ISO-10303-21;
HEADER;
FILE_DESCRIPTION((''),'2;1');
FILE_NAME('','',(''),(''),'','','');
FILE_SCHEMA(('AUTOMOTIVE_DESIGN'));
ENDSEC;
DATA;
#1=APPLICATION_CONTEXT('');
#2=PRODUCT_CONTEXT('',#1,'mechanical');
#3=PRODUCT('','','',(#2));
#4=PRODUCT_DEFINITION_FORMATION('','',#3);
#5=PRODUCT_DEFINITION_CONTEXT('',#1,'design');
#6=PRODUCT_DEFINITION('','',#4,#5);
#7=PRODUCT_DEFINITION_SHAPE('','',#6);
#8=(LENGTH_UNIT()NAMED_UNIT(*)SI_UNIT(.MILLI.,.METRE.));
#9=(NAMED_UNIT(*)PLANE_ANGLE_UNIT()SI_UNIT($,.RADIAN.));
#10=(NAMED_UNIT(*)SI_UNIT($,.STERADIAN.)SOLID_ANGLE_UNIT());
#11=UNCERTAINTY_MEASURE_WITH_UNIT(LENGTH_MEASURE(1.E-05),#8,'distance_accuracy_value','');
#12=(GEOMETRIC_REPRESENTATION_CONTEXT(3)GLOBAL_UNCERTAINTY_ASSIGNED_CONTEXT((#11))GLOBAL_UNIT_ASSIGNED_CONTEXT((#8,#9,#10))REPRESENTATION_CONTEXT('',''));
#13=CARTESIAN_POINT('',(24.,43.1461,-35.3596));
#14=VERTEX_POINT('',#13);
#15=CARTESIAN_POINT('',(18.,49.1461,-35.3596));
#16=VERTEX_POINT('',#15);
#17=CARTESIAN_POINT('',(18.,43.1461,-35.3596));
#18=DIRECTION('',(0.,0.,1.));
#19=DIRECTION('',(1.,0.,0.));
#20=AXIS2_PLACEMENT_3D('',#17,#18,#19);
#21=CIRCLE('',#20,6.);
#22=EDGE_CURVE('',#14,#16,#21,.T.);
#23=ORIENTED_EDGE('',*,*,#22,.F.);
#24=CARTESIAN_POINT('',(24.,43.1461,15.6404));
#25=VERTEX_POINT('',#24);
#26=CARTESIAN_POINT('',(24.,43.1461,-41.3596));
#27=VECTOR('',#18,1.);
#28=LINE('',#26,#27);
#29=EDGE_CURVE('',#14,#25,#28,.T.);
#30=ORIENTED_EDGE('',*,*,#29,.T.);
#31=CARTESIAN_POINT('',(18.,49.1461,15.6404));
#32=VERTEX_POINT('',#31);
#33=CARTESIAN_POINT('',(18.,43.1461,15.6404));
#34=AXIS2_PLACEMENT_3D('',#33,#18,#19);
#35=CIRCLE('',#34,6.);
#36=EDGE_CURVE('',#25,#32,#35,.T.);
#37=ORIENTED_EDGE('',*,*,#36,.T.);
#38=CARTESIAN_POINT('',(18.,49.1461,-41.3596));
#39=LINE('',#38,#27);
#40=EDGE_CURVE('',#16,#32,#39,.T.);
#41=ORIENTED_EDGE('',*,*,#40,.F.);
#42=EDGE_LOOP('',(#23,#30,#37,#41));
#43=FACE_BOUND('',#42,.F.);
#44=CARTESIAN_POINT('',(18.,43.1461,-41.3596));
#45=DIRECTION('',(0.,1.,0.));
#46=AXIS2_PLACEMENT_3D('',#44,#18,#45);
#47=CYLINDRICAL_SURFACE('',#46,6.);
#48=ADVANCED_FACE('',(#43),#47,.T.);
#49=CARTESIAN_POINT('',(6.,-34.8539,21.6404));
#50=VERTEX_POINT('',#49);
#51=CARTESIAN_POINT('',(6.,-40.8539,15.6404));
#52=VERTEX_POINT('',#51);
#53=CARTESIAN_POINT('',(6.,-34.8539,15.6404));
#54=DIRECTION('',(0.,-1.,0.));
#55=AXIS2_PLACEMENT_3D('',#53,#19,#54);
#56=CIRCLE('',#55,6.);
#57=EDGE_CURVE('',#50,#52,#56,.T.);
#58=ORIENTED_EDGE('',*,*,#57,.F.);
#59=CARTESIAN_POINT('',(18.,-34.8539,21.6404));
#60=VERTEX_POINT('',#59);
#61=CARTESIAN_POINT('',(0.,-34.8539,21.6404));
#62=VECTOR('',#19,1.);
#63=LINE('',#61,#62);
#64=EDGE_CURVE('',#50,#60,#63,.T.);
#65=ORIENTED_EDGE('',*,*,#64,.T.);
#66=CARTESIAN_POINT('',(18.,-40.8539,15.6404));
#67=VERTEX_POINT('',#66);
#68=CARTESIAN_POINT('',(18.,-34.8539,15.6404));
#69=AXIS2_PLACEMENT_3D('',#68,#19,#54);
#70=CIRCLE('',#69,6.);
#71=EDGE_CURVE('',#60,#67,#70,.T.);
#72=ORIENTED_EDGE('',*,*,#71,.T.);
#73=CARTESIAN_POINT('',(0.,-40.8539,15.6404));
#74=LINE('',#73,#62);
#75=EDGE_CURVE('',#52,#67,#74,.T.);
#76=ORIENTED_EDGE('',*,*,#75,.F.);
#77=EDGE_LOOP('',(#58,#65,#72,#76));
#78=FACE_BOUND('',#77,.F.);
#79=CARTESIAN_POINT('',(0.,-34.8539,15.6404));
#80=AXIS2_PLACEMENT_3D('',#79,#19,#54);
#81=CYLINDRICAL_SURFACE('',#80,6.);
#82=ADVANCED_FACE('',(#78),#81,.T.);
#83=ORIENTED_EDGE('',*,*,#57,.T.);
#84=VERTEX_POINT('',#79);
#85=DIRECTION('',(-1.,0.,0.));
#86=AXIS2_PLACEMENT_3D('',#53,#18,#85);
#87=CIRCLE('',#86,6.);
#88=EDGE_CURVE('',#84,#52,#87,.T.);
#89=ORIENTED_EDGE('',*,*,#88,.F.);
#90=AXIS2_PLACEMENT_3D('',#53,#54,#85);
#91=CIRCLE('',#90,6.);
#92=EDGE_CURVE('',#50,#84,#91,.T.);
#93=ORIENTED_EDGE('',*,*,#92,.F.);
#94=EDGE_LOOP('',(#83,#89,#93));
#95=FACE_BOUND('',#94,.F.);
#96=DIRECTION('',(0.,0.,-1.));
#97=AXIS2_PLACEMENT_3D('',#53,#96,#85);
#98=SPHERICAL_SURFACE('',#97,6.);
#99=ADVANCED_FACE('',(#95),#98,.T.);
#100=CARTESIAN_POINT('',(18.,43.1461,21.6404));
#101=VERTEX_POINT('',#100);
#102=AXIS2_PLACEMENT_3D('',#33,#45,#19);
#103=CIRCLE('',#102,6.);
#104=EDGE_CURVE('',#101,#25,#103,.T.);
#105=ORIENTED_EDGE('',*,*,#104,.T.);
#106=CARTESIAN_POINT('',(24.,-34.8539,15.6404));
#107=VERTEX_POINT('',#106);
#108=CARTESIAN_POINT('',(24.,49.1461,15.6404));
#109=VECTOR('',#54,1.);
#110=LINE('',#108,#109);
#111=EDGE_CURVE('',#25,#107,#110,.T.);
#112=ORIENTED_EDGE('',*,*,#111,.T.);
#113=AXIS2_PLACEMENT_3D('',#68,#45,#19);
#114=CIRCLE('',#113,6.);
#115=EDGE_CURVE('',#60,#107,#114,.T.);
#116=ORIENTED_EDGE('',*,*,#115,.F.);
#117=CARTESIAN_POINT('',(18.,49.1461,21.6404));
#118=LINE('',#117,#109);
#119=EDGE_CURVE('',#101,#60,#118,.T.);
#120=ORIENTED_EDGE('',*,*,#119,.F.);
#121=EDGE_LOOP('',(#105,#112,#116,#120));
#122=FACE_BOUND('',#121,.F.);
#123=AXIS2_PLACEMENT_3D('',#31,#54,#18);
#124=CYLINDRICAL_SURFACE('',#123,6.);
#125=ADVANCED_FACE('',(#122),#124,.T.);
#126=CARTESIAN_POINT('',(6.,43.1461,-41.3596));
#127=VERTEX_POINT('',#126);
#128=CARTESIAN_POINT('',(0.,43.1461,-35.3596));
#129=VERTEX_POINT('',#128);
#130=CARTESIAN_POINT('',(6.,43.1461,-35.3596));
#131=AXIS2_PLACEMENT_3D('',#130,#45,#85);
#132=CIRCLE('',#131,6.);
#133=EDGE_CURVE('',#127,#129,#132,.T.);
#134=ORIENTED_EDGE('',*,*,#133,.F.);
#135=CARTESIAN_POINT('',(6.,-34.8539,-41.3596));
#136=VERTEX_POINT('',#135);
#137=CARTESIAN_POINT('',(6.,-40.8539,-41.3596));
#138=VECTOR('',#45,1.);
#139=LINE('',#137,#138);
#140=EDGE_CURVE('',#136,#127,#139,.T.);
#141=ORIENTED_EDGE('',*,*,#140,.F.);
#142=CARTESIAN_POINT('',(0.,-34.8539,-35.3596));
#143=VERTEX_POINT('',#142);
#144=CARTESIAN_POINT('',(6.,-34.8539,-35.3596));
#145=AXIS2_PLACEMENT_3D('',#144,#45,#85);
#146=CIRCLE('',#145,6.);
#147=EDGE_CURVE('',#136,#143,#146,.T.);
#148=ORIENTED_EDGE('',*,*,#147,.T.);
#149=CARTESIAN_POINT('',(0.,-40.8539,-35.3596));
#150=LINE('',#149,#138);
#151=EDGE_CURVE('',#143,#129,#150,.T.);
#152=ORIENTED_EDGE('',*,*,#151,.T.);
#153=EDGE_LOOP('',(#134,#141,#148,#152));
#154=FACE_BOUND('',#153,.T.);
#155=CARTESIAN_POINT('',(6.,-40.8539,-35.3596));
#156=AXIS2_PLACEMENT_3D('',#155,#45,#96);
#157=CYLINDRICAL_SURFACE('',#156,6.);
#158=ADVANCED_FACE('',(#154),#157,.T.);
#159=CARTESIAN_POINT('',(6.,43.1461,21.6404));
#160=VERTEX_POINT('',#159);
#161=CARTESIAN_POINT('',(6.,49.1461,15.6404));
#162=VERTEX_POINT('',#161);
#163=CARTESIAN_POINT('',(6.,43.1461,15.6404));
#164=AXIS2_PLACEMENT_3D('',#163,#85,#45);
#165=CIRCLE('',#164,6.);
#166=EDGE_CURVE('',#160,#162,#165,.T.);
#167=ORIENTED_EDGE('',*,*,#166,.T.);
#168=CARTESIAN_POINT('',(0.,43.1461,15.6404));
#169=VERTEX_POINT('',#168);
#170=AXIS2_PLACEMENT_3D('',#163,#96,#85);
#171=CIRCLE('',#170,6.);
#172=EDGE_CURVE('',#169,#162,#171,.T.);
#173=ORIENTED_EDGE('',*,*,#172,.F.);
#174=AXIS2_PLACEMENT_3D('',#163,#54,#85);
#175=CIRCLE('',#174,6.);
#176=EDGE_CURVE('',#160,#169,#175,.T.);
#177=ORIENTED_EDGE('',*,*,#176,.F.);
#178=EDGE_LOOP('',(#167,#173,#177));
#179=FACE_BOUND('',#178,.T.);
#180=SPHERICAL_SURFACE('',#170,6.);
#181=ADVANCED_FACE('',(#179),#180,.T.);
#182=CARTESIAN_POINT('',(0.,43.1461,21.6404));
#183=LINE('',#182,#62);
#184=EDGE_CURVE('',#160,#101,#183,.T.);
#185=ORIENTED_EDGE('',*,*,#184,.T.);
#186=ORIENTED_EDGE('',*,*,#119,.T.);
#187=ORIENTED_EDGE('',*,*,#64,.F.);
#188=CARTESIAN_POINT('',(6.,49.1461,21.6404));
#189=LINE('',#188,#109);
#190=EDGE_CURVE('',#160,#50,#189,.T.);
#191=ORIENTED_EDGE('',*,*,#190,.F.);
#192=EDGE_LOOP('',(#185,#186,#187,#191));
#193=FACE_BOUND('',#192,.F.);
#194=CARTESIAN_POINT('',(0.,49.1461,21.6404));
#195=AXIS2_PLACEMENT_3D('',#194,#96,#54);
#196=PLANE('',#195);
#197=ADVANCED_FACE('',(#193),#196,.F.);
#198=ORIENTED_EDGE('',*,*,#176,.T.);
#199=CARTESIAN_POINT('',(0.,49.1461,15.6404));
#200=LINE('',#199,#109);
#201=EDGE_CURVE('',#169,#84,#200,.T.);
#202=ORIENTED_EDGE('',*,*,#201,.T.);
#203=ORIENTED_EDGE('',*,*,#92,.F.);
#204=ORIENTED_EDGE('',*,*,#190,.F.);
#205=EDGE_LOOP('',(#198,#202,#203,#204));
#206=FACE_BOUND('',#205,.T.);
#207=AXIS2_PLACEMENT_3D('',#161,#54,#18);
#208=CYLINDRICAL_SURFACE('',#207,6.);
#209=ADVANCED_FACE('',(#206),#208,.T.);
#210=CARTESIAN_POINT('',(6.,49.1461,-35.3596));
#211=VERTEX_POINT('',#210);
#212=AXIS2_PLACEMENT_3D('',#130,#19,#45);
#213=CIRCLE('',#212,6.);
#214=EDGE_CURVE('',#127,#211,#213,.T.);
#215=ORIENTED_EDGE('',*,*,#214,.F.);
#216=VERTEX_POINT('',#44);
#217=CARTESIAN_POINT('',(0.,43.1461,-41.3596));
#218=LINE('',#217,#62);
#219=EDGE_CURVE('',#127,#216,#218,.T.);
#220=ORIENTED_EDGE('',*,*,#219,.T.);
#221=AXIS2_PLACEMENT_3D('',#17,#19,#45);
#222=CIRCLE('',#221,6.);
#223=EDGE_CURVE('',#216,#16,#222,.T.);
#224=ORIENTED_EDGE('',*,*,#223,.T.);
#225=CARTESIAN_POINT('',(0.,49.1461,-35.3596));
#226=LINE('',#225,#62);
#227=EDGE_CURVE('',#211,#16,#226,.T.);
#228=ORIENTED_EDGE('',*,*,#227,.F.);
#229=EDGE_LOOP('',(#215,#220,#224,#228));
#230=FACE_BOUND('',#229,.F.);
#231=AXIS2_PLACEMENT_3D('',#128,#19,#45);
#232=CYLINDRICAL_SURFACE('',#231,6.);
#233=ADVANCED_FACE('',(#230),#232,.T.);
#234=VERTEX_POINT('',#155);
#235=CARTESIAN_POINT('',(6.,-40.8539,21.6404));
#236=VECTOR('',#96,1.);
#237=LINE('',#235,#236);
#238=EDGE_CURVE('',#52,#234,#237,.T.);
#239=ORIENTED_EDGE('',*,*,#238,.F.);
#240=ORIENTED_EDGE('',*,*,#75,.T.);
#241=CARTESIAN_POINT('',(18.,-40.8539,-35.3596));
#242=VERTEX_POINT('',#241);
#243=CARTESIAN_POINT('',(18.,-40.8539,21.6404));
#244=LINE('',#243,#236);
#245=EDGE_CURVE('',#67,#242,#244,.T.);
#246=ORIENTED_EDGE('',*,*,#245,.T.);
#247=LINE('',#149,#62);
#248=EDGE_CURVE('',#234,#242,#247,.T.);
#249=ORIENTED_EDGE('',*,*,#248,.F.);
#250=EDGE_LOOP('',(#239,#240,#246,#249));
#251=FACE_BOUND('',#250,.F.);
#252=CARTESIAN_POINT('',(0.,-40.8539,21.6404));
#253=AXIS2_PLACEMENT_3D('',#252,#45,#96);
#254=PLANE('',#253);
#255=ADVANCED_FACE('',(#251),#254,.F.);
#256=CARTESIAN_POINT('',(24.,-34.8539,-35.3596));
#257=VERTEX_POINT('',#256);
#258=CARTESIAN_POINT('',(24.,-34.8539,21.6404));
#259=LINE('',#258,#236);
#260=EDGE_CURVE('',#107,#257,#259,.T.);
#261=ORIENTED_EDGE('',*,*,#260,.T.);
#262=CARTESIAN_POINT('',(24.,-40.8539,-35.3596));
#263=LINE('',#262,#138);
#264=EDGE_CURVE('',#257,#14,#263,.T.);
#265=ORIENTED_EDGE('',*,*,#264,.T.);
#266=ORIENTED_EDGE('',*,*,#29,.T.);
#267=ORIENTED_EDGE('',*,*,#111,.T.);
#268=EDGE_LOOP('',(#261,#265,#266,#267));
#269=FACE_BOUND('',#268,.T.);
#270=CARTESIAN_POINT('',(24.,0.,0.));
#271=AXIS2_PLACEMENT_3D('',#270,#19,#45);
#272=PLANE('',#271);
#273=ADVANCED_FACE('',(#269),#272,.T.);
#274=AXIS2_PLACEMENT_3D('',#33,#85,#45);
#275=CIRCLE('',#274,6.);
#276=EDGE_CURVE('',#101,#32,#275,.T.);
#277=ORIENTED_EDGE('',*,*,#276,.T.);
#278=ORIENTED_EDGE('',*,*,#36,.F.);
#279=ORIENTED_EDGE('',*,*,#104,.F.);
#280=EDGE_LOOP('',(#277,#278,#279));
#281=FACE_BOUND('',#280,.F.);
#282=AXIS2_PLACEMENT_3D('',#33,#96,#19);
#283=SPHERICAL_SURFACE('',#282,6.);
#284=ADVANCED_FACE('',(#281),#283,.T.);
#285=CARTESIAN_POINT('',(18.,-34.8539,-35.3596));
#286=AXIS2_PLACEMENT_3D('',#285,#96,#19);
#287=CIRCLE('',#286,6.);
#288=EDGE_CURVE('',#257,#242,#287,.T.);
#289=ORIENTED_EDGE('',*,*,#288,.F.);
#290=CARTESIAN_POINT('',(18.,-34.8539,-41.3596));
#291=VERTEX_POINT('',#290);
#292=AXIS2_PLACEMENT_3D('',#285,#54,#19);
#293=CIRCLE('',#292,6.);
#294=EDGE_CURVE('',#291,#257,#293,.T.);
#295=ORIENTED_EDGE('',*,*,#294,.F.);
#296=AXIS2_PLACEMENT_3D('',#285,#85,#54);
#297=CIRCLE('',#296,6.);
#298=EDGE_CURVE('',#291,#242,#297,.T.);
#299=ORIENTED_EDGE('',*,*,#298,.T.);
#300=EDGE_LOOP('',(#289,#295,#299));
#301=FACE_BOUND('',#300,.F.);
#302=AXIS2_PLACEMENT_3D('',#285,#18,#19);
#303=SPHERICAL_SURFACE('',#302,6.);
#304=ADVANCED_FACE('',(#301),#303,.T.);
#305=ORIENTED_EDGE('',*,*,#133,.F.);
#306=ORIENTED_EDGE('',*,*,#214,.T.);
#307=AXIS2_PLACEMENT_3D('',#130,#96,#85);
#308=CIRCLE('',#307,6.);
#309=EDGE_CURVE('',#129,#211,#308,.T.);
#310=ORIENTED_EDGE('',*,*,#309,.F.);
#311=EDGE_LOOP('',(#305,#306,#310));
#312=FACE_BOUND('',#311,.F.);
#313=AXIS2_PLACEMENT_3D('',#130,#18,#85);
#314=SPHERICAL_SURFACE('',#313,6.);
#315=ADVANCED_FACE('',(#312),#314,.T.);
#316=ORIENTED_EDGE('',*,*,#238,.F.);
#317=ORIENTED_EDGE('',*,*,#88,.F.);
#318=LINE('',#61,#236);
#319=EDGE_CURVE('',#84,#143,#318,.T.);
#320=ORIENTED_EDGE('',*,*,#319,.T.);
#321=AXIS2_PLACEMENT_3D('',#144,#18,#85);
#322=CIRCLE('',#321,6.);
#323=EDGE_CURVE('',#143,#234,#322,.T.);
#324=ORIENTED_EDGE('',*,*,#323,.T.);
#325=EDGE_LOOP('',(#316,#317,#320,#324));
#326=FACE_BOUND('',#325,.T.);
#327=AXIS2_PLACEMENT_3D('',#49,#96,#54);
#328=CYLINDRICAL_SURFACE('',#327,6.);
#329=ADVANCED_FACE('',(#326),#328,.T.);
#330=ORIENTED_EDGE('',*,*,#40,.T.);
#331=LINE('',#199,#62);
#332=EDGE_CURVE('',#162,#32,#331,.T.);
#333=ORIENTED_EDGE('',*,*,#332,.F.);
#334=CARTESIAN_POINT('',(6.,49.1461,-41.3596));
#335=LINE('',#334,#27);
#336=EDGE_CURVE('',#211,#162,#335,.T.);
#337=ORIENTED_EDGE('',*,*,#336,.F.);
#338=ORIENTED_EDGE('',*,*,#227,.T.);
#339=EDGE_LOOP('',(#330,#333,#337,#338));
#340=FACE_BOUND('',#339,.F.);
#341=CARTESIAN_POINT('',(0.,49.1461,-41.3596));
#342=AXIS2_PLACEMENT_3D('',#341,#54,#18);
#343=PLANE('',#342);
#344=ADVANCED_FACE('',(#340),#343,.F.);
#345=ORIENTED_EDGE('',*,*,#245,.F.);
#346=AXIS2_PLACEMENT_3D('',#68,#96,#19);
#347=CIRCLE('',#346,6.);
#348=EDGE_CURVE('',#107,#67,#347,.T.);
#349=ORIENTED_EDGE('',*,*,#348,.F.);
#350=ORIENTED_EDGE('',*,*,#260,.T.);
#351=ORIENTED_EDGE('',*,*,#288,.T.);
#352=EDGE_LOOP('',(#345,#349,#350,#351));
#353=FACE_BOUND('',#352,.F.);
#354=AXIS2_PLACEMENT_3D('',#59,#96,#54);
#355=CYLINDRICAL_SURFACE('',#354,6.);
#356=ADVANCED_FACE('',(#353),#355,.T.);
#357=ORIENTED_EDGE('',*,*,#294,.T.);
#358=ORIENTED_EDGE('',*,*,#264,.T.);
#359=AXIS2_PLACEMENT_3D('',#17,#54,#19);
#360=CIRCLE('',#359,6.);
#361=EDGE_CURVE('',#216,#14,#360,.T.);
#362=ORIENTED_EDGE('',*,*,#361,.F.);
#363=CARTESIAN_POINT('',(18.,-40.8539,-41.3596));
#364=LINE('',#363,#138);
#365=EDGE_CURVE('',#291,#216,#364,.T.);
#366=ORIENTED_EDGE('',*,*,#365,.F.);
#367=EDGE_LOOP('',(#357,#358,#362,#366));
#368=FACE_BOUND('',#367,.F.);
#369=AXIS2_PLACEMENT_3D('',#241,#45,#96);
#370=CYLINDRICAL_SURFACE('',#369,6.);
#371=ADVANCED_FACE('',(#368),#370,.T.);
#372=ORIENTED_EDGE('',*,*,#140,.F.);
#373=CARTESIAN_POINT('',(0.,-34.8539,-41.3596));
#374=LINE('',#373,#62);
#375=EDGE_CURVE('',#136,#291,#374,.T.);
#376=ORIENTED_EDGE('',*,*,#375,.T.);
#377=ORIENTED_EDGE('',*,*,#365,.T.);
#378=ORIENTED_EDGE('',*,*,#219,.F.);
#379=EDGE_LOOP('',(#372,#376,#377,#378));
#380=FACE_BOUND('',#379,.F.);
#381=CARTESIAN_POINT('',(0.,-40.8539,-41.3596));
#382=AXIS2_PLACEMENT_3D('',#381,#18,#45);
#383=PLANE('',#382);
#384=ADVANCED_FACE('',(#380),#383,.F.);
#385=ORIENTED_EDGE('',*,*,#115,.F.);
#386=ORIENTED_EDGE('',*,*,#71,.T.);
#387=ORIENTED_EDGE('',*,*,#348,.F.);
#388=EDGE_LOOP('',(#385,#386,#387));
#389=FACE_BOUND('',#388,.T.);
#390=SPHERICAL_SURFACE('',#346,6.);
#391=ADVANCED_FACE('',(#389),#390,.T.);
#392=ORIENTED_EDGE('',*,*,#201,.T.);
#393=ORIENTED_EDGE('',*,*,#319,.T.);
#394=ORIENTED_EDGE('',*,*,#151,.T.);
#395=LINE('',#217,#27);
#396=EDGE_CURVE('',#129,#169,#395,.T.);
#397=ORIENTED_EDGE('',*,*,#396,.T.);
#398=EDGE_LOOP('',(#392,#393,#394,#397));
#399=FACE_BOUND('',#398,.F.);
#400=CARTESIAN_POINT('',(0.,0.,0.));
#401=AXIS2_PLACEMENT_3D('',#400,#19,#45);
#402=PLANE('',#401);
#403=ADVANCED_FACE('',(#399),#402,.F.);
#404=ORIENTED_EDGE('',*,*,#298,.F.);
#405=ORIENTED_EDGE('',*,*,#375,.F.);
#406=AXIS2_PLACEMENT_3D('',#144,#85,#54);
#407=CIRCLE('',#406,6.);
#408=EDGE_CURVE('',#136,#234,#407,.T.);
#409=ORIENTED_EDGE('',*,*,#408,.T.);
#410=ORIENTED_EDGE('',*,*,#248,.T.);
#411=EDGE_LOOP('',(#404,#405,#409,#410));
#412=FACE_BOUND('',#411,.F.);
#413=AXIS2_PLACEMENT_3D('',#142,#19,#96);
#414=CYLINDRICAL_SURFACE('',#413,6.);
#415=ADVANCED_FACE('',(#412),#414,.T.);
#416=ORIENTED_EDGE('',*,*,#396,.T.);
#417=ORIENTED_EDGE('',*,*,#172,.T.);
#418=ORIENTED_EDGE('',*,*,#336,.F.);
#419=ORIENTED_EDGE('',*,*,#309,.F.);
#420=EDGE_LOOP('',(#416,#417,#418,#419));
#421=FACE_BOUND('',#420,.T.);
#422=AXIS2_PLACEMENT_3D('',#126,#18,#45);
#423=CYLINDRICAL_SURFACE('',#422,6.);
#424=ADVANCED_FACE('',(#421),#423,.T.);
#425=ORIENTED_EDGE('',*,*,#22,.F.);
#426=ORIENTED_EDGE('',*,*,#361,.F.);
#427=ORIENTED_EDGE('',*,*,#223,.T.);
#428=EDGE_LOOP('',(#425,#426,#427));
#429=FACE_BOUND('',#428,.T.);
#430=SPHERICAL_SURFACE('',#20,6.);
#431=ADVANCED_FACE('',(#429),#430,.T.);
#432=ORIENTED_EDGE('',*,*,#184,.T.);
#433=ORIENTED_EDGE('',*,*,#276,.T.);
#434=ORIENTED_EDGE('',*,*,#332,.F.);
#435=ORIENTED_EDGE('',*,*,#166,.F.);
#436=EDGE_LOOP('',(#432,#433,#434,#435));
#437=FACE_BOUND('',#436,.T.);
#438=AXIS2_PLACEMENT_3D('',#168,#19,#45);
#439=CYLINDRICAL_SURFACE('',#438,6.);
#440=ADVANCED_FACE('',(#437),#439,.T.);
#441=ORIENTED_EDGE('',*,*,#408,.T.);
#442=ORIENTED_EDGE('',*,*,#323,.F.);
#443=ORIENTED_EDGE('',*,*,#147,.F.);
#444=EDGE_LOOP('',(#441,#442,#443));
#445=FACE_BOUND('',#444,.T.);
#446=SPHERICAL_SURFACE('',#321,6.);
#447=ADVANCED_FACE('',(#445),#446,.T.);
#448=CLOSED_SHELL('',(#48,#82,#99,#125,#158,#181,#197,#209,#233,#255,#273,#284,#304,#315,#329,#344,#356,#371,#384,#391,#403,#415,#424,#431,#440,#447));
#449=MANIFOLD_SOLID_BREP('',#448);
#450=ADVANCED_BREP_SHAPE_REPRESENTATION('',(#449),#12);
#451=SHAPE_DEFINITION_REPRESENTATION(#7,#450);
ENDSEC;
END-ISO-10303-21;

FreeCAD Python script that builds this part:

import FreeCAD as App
import Part
import Sketcher

V = App.Vector
Q = App.Units.Quantity


def add_polygon(sketch, points):
    """Adds a closed chain of lines whose ends are joined by coincident constraints."""
    first, n = sketch.GeometryCount, len(points)
    for a, b in zip(points, points[1:] + points[:1]):
        sketch.addGeometry(Part.LineSegment(App.Vector(*a, 0), App.Vector(*b, 0)), False)
    for i in range(n):
        sketch.addConstraint(Sketcher.Constraint("Coincident", first + i, 2, first + (i + 1) % n, 1))

doc = App.newDocument("Part")
body = doc.addObject("PartDesign::Body", "Body")

# Sketch on YZ plane
sketch1 = body.newObject("Sketcher::SketchObject", "Sketch")
sketch1.AttachmentSupport = (doc.getObject("YZ_Plane"), [""])
sketch1.MapMode = "FlatFace"
add_polygon(sketch1, [(49, -41), (49, 22), (-41, 22), (-41, -41)])  # lines 0-3
sketch1.addConstraint([
    Sketcher.Constraint("Vertical", 0),
    Sketcher.Constraint("Horizontal", 1),
    Sketcher.Constraint("Vertical", 2),
    Sketcher.Constraint("Horizontal", 3),
    Sketcher.Constraint("DistanceX", 1, 2, 1, 1, Q("90 mm")),
    Sketcher.Constraint("DistanceY", 0, 1, 0, 2, Q("63 mm")),
    Sketcher.Constraint("DistanceX", -1, 1, 0, 2, Q("49.146 mm")),
    Sketcher.Constraint("DistanceY", -1, 1, 0, 2, Q("21.6404 mm")),
])
pad1 = body.newObject("PartDesign::Pad", "Pad")
pad1.Profile = sketch1
pad1.Length = 24
doc.recompute()

fillet = body.newObject("PartDesign::Fillet", "Fillet")
fillet.Base = (pad1, ["Edge1"])
fillet.UseAllEdges = True
fillet.Radius = 6

doc.recompute()
